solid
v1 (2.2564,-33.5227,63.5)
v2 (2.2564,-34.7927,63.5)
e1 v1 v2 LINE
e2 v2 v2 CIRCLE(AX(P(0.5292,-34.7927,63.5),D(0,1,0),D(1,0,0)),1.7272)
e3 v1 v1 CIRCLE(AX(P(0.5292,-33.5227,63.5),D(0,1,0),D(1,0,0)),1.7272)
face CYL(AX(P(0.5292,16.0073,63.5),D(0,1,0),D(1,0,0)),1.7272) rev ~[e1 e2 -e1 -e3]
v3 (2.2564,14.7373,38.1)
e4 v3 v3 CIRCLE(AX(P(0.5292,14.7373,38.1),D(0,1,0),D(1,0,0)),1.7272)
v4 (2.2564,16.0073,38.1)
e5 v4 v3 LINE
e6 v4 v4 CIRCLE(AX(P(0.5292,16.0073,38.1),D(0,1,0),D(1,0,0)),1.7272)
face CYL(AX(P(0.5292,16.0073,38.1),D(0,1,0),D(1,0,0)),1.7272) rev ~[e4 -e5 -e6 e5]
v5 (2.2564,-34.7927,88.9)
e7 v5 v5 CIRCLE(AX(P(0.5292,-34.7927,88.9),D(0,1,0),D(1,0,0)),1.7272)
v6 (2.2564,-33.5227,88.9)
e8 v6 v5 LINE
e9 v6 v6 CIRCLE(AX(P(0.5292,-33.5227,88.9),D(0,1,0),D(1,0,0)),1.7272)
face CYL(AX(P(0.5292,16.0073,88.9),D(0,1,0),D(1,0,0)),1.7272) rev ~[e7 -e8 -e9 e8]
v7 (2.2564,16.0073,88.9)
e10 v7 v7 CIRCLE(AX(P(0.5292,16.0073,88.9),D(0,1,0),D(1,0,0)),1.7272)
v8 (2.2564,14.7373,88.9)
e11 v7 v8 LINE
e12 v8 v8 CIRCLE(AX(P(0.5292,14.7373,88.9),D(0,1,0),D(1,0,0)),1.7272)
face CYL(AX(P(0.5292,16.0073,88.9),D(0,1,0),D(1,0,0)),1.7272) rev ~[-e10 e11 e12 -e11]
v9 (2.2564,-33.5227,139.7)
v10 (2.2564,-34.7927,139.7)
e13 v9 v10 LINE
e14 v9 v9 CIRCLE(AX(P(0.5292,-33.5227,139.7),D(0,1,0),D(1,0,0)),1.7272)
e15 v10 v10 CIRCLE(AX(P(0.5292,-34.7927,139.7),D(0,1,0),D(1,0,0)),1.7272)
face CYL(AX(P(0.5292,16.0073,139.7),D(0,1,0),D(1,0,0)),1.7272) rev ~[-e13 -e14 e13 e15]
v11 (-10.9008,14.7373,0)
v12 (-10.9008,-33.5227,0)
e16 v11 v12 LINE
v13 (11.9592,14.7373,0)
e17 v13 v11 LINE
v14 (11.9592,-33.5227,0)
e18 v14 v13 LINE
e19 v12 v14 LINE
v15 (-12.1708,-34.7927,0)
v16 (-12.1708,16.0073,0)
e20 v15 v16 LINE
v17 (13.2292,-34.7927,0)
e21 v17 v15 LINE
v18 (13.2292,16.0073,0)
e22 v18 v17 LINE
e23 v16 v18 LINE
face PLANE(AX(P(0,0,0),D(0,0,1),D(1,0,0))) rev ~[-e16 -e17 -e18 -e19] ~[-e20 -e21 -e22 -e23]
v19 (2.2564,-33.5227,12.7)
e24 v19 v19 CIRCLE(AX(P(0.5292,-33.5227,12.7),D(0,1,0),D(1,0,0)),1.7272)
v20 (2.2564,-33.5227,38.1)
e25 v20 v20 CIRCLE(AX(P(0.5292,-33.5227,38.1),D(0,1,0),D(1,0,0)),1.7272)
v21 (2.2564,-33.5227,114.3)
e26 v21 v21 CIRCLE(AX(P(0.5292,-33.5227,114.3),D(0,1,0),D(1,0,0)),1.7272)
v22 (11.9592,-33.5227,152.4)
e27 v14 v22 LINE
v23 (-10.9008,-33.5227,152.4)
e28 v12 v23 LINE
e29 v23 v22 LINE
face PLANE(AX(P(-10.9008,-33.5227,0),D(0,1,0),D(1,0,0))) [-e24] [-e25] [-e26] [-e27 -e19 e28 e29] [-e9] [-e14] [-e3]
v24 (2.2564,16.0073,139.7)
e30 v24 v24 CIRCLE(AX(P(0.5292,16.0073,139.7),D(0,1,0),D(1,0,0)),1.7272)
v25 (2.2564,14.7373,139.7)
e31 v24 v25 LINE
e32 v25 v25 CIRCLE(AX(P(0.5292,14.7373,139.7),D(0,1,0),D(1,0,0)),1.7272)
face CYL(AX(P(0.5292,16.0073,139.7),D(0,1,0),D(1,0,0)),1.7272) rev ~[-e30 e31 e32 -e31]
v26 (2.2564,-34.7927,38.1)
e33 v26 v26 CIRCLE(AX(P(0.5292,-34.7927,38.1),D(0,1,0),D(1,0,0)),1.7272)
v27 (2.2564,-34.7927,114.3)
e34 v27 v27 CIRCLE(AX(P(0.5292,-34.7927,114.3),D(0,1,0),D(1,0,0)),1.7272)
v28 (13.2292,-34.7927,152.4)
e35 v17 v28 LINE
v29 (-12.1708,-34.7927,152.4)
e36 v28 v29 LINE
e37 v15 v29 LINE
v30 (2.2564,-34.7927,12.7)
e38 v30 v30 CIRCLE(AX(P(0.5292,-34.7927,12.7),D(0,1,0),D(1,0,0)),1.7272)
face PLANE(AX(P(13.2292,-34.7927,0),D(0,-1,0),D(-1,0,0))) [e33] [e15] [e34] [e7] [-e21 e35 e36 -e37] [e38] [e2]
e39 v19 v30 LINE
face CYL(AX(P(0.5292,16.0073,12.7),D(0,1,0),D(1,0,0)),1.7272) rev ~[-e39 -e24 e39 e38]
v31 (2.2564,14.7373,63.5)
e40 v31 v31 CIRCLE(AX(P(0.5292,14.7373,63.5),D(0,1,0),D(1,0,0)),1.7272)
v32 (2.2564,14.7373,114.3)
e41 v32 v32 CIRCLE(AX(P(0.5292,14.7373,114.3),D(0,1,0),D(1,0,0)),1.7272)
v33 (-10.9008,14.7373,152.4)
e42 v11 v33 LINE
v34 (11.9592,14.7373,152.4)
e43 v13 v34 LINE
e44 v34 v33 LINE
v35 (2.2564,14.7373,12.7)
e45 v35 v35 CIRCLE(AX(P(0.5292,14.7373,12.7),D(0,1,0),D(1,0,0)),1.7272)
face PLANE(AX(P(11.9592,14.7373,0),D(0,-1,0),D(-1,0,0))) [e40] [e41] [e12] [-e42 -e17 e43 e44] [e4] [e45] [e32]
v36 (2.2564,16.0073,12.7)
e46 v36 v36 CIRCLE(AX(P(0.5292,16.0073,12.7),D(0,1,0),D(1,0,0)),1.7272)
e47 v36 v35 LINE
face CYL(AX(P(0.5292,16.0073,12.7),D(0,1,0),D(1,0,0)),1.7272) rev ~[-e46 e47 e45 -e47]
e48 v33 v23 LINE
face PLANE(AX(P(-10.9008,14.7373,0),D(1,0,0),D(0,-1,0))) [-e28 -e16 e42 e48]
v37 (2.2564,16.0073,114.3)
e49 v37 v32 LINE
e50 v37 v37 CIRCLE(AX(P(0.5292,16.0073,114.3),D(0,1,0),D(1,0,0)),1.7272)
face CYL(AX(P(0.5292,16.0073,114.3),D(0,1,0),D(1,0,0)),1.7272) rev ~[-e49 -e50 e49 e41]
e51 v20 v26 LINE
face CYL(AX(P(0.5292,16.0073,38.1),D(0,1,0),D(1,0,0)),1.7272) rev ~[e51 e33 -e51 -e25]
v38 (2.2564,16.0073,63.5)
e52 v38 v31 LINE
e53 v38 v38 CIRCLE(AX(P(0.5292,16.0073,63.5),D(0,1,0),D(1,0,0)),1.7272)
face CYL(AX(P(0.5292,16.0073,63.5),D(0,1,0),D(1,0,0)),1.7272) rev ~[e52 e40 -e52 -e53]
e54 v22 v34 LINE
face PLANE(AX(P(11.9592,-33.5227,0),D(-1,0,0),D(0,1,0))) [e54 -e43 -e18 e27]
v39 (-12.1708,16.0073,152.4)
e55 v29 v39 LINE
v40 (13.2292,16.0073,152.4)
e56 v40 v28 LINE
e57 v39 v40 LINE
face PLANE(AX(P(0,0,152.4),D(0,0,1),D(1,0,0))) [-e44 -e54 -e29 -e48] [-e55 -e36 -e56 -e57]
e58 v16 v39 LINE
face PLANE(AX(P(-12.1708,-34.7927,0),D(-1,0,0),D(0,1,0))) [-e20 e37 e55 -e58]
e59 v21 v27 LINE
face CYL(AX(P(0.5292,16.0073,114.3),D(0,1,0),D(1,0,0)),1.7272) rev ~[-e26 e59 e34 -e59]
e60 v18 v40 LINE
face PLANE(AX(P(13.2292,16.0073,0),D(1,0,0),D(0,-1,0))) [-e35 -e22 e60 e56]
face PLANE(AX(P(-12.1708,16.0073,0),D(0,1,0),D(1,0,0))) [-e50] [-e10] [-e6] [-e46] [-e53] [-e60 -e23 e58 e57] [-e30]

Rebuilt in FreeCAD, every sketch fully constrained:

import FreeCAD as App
import Part
import Sketcher
from FreeCAD import Vector
Q = App.Units.Quantity


def add_polygon(sketch, points):
    """Adds a closed chain of lines whose ends are joined by coincident constraints."""
    first, n = sketch.GeometryCount, len(points)
    for a, b in zip(points, points[1:] + points[:1]):
        sketch.addGeometry(Part.LineSegment(App.Vector(*a, 0), App.Vector(*b, 0)), False)
    for i in range(n):
        sketch.addConstraint(Sketcher.Constraint("Coincident", first + i, 2, first + (i + 1) % n, 1))

doc = App.newDocument("Part")
params = doc.addObject("Spreadsheet::Sheet", "Params")
for row, (alias, value) in enumerate([
    ("sketch1_width", "1 in"),
    ("sketch1_height", "2 in"),
    ("pad1_length", "6 in"),
    ("sketch2_diameter", "0.136 in"),
    ("linearpattern_pitch", "1 in"),
], start=1):
    params.set(f"A{row}", alias)
    params.set(f"B{row}", "=" + value)
    params.setAlias(f"B{row}", alias)

body = doc.addObject("PartDesign::Body", "Body")

sketch1 = body.newObject("Sketcher::SketchObject", "Sketch")
sketch1.AttachmentSupport = (doc.getObject("XY_Plane"), [""])
sketch1.MapMode = "FlatFace"
add_polygon(sketch1, [(13.2292, 16.0073), (-12.1708, 16.0073), (-12.1708, -34.7927), (13.2292, -34.7927)])
add_polygon(sketch1, [(-10.9008, 14.7373), (11.9592, 14.7373), (11.9592, -33.5227), (-10.9008, -33.5227)])
sketch1.addConstraint([
    Sketcher.Constraint("Horizontal", 0),
    Sketcher.Constraint("Vertical", 1),
    Sketcher.Constraint("Horizontal", 2),
    Sketcher.Constraint("Vertical", 3),
    Sketcher.Constraint("Horizontal", 4),
    Sketcher.Constraint("Vertical", 5),
    Sketcher.Constraint("Horizontal", 6),
    Sketcher.Constraint("Vertical", 7),
    Sketcher.Constraint("DistanceX", 0, 2, 0, 1, Q("1 in")),
    Sketcher.Constraint("DistanceY", 1, 2, 1, 1, Q("2 in")),
    Sketcher.Constraint("DistanceX", 4, 2, 3, 2, Q("0.05 in")),
    Sketcher.Constraint("DistanceY", 4, 2, 3, 2, Q("0.05 in")),
    Sketcher.Constraint("DistanceY", 2, 2, 5, 2, Q("0.05 in")),
    Sketcher.Constraint("DistanceX", 1, 2, 6, 2, Q("0.05 in")),
    Sketcher.Constraint("DistanceY", -1, 1, 0, 2, Q("0.6302 in")),
    Sketcher.Constraint("DistanceX", 0, 2, -1, 1, Q("12.1708 mm")),
])
sketch1.setExpression("Constraints[16]", "Params.sketch1_width")
sketch1.setExpression("Constraints[17]", "Params.sketch1_height")
pad1 = body.newObject("PartDesign::Pad", "Pad")
pad1.Profile = sketch1
pad1.setExpression("Length", "Params.pad1_length")

sketch2 = body.newObject("Sketcher::SketchObject", "Sketch001")
sketch2.AttachmentSupport = (doc.getObject("XZ_Plane"), [""])
sketch2.MapMode = "FlatFace"
sketch2.AttachmentOffset = App.Placement(Vector(0, 0, -0.6302087 * 25.4), App.Rotation())
sketch2.addGeometry(Part.Circle(Vector(0.5292, 12.7, 0), Vector(0, 0, 1), 1.7272), False)
sketch2.addConstraint([
    Sketcher.Constraint("Diameter", 0, Q("0.136 in")),
    Sketcher.Constraint("DistanceY", -1, 1, 0, 3, Q("0.5 in")),
    Sketcher.Constraint("DistanceX", -1, 1, 0, 3, Q("0.5292 mm")),
])
sketch2.setExpression("Constraints[0]", "Params.sketch2_diameter")
pocket1 = body.newObject("PartDesign::Pocket", "Pocket")
pocket1.Profile = sketch2
pocket1.Type = "ThroughAll"
pocket1.Reversed = True
doc.recompute()

linearpattern = body.newObject("PartDesign::LinearPattern", "LinearPattern")
linearpattern.Originals = [pocket1]
linearpattern.Direction = (doc.getObject("Z_Axis"), [""])
linearpattern.Mode = "offset"
linearpattern.setExpression("Offset", "Params.linearpattern_pitch")
linearpattern.Occurrences = 6
body.Tip = linearpattern

doc.recompute()
